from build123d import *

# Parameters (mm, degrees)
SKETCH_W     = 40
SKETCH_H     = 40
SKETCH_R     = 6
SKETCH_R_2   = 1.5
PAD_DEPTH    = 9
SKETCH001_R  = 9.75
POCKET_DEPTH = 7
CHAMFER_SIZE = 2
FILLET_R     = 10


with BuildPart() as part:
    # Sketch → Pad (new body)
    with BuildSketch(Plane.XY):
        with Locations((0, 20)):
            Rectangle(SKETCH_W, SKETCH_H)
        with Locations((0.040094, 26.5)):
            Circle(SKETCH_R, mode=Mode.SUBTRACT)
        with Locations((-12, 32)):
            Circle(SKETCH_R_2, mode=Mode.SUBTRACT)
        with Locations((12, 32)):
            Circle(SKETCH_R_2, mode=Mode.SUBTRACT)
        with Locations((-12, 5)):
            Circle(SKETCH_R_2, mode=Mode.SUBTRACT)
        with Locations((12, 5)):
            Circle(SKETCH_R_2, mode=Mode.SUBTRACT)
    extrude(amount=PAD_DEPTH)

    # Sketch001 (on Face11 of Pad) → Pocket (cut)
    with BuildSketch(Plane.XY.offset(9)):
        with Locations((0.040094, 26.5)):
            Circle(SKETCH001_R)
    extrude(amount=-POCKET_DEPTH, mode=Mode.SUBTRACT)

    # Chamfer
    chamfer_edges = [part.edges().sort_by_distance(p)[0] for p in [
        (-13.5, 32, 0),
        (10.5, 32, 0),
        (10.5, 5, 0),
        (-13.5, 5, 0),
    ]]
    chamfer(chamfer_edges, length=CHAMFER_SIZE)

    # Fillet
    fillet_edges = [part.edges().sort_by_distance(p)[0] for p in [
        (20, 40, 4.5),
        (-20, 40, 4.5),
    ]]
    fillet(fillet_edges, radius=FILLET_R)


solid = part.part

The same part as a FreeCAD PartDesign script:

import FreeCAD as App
import Part
import Sketcher

V = App.Vector


def edges_at(feature, points):
    """Names of the edges that pass closest to the given points."""
    edges = feature.Shape.Edges
    near = lambda p: min(range(len(edges)), key=lambda i: edges[i].distToShape(Part.Vertex(*p))[0])
    return sorted({f"Edge{near(p) + 1}" for p in points})


def add_polygon(sketch, points):
    """Adds a closed chain of lines whose ends are joined by coincident constraints."""
    first, n = sketch.GeometryCount, len(points)
    for a, b in zip(points, points[1:] + points[:1]):
        sketch.addGeometry(Part.LineSegment(App.Vector(*a, 0), App.Vector(*b, 0)), False)
    for i in range(n):
        sketch.addConstraint(Sketcher.Constraint("Coincident", first + i, 2, first + (i + 1) % n, 1))

doc = App.newDocument("Part")
body = doc.addObject("PartDesign::Body", "Body")

sketch1 = body.newObject("Sketcher::SketchObject", "Sketch")
sketch1.AttachmentSupport = (doc.getObject("XY_Plane"), [""])
sketch1.MapMode = "FlatFace"
add_polygon(sketch1, [(-20, 40), (-20, 0), (20, 0), (20, 40)])
sketch1.addGeometry(Part.Circle(V(-12, 5, 0), V(0, 0, 1), 1.5), False)
sketch1.addGeometry(Part.Circle(V(12, 5, 0), V(0, 0, 1), 1.5), False)
sketch1.addGeometry(Part.Circle(V(-12, 32, 0), V(0, 0, 1), 1.5), False)
sketch1.addGeometry(Part.Circle(V(0.040094, 26.5, 0), V(0, 0, 1), 6), False)
sketch1.addGeometry(Part.Circle(V(12, 32, 0), V(0, 0, 1), 1.5), False)
sketch1.addConstraint(Sketcher.Constraint("Vertical", 0))
sketch1.addConstraint(Sketcher.Constraint("Horizontal", 1))
sketch1.addConstraint(Sketcher.Constraint("Vertical", 2))
sketch1.addConstraint(Sketcher.Constraint("Horizontal", 3))
sketch1.addConstraint(Sketcher.Constraint("Equal", 4, 5))
sketch1.addConstraint(Sketcher.Constraint("Equal", 5, 6))
sketch1.addConstraint(Sketcher.Constraint("Equal", 6, 8))
sketch1.addConstraint(Sketcher.Constraint("Symmetric", 0, 2, 1, 2, -1, 1))
sketch1.addConstraint(Sketcher.Constraint("Symmetric", 4, 3, 5, 3, -2))
sketch1.addConstraint(Sketcher.Constraint("Symmetric", 6, 3, 8, 3, -2))
sketch1.addConstraint(Sketcher.Constraint("Vertical", 4, 3, 6, 3))
sketch1.addConstraint(Sketcher.Constraint("Equal", 3, 0))
sketch1.addConstraint(Sketcher.Constraint("Diameter", 4, 3.0))
sketch1.addConstraint(Sketcher.Constraint("Diameter", 7, 12.0))
sketch1.addConstraint(Sketcher.Constraint("DistanceX", 1, 1, 1, 2, 40.0))
sketch1.addConstraint(Sketcher.Constraint("DistanceX", 4, 3, -1, 1, 12.0))
sketch1.addConstraint(Sketcher.Constraint("DistanceY", -1, 1, 4, 3, 5.0))
sketch1.addConstraint(Sketcher.Constraint("DistanceY", -1, 1, 6, 3, 32.0))
sketch1.addConstraint(Sketcher.Constraint("DistanceY", -1, 1, 7, 3, 26.5))
sketch1.addConstraint(Sketcher.Constraint("DistanceX", -1, 1, 7, 3, 0.040094))
pad1 = body.newObject("PartDesign::Pad", "Pad")
pad1.Profile = sketch1
pad1.Length = 9

sketch2 = body.newObject("Sketcher::SketchObject", "Sketch001")
sketch2.AttachmentSupport = (doc.getObject("XY_Plane"), [""])
sketch2.MapMode = "FlatFace"
sketch2.AttachmentOffset = App.Placement(V(0, 0, 9), App.Rotation())
sketch2.addGeometry(Part.Circle(V(0.040094, 26.5, 0), V(0, 0, 1), 9.75), False)
sketch2.addConstraint(Sketcher.Constraint("Diameter", 0, 19.5))
sketch2.addConstraint(Sketcher.Constraint("DistanceY", -1, 1, 0, 3, 26.5))
sketch2.addConstraint(Sketcher.Constraint("DistanceX", -1, 1, 0, 3, 0.040094))
pocket1 = body.newObject("PartDesign::Pocket", "Pocket")
pocket1.Profile = sketch2
pocket1.Length = 7
doc.recompute()

chamfer = body.newObject("PartDesign::Chamfer", "Chamfer")
chamfer.Base = (pocket1, edges_at(pocket1, [
    (-13.5, 32, 0),
    (10.5, 32, 0),
    (10.5, 5, 0),
    (-13.5, 5, 0),
]))
chamfer.Size = 2
doc.recompute()

fillet = body.newObject("PartDesign::Fillet", "Fillet")
fillet.Base = (chamfer, edges_at(chamfer, [(20, 40, 4.5), (-20, 40, 4.5)]))
fillet.Radius = 10

doc.recompute()
